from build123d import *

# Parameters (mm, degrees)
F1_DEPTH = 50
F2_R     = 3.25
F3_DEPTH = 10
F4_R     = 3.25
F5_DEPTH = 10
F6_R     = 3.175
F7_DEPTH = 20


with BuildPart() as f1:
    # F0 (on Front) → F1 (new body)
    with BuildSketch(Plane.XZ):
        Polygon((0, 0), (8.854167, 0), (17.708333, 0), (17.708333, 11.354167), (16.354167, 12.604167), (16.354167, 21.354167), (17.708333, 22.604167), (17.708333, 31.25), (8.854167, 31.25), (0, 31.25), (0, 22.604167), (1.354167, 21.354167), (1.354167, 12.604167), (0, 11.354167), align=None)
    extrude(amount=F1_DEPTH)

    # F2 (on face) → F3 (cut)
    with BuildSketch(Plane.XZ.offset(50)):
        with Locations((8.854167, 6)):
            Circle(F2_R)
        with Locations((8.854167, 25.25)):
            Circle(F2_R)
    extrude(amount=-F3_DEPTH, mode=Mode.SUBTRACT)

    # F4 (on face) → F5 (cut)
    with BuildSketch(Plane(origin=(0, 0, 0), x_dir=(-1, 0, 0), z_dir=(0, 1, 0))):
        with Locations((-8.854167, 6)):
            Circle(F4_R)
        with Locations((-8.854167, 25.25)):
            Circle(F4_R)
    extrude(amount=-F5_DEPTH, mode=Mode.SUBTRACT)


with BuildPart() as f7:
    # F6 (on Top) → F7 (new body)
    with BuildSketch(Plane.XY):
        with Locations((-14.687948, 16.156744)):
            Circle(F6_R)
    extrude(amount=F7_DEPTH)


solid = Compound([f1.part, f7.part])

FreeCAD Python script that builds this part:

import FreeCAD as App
import Part
import Sketcher
from FreeCAD import Vector
Q = App.Units.Quantity


def add_polygon(sketch, points):
    """Adds a closed chain of lines whose ends are joined by coincident constraints."""
    first, n = sketch.GeometryCount, len(points)
    for a, b in zip(points, points[1:] + points[:1]):
        sketch.addGeometry(Part.LineSegment(App.Vector(*a, 0), App.Vector(*b, 0)), False)
    for i in range(n):
        sketch.addConstraint(Sketcher.Constraint("Coincident", first + i, 2, first + (i + 1) % n, 1))

doc = App.newDocument("Part")
body = doc.addObject("PartDesign::Body", "Body")

# Sketch on XZ plane
sketch1 = body.newObject("Sketcher::SketchObject", "Sketch")
sketch1.AttachmentSupport = (doc.getObject("XZ_Plane"), [""])
sketch1.MapMode = "FlatFace"
add_polygon(sketch1, [(0, 0), (17.7, 0), (17.7, 11.4), (16.4, 12.6), (16.4, 21.4), (17.7, 22.6), (17.7, 31.2), (0, 31.2), (0, 22.6), (1.4, 21.4), (1.4, 12.6), (0, 11.4)])  # lines 0-11
sketch1.addConstraint(Sketcher.Constraint("Horizontal", 0))
sketch1.addConstraint(Sketcher.Constraint("Vertical", 1))
sketch1.addConstraint(Sketcher.Constraint("Vertical", 3))
sketch1.addConstraint(Sketcher.Constraint("Vertical", 5))
sketch1.addConstraint(Sketcher.Constraint("Horizontal", 6))
sketch1.addConstraint(Sketcher.Constraint("Vertical", 7))
sketch1.addConstraint(Sketcher.Constraint("Vertical", 9))
sketch1.addConstraint(Sketcher.Constraint("Vertical", 11))
sketch1.addConstraint(Sketcher.Constraint("Coincident", 11, 2, -1, 1))
sketch1.addConstraint(Sketcher.Constraint("PointOnObject", 6, 2, -2))
sketch1.addConstraint(Sketcher.Constraint("Parallel", 2, 8))
sketch1.addConstraint(Sketcher.Constraint("Parallel", 4, 10))
sketch1.addConstraint(Sketcher.Constraint("Horizontal", 4, 2, 7, 2))
sketch1.addConstraint(Sketcher.Constraint("Horizontal", 3, 2, 8, 2))
sketch1.addConstraint(Sketcher.Constraint("Horizontal", 2, 2, 9, 2))
sketch1.addConstraint(Sketcher.Constraint("Horizontal", 1, 2, 10, 2))
sketch1.addConstraint(Sketcher.Constraint("Vertical", 1, 2, 4, 2))
sketch1.addConstraint(Sketcher.Constraint("DistanceY", 1, 2, 3, 2, Q("10 mm")))
sketch1.addConstraint(Sketcher.Constraint("DistanceX", 8, 2, 3, 2, Q("15 mm")))
sketch1.addConstraint(Sketcher.Constraint("DistanceY", 3, 1, 3, 2, Q("8.75 mm")))
sketch1.addConstraint(Sketcher.Constraint("DistanceY", -1, 1, 5, 2, Q("31.25 mm")))
sketch1.addConstraint(Sketcher.Constraint("DistanceX", 0, 1, 0, 2, Q("17.708333 mm")))
sketch1.addConstraint(Sketcher.Constraint("DistanceY", 1, 1, 1, 2, Q("11.354167 mm")))
pad1 = body.newObject("PartDesign::Pad", "Pad")
pad1.Profile = sketch1
pad1.Length = 50

# Sketch on XZ plane
sketch2 = body.newObject("Sketcher::SketchObject", "Sketch001")
sketch2.AttachmentSupport = (doc.getObject("XZ_Plane"), [""])
sketch2.MapMode = "FlatFace"
sketch2.AttachmentOffset = App.Placement(Vector(0, 0, 50), App.Rotation())
sketch2.addGeometry(Part.Circle(Vector(8.9, 6, 0), Vector(0, 0, 1), 3.2), False)
sketch2.addGeometry(Part.Circle(Vector(8.9, 25.2, 0), Vector(0, 0, 1), 3.2), False)
sketch2.addConstraint(Sketcher.Constraint("Equal", 0, 1))
sketch2.addConstraint(Sketcher.Constraint("Vertical", 0, 3, 1, 3))
sketch2.addConstraint(Sketcher.Constraint("Diameter", 0, Q("6.5 mm")))
sketch2.addConstraint(Sketcher.Constraint("DistanceY", -1, 1, 0, 3, Q("6 mm")))
sketch2.addConstraint(Sketcher.Constraint("DistanceY", -1, 1, 1, 3, Q("25.25 mm")))
sketch2.addConstraint(Sketcher.Constraint("DistanceX", -1, 1, 0, 3, Q("8.854167 mm")))
pocket1 = body.newObject("PartDesign::Pocket", "Pocket")
pocket1.Profile = sketch2
pocket1.Length = 10

# Sketch on XZ plane
sketch3 = body.newObject("Sketcher::SketchObject", "Sketch002")
sketch3.AttachmentSupport = (doc.getObject("XZ_Plane"), [""])
sketch3.MapMode = "FlatFace"
sketch3.addGeometry(Part.Circle(Vector(8.9, 6, 0), Vector(0, 0, 1), 3.2), False)
sketch3.addGeometry(Part.Circle(Vector(8.9, 25.2, 0), Vector(0, 0, 1), 3.2), False)
sketch3.addConstraint(Sketcher.Constraint("Equal", 0, 1))
sketch3.addConstraint(Sketcher.Constraint("Vertical", 0, 3, 1, 3))
sketch3.addConstraint(Sketcher.Constraint("Diameter", 0, Q("6.5 mm")))
sketch3.addConstraint(Sketcher.Constraint("DistanceY", -1, 1, 0, 3, Q("6 mm")))
sketch3.addConstraint(Sketcher.Constraint("DistanceY", -1, 1, 1, 3, Q("25.25 mm")))
sketch3.addConstraint(Sketcher.Constraint("DistanceX", -1, 1, 0, 3, Q("8.854167 mm")))
pocket2 = body.newObject("PartDesign::Pocket", "Pocket001")
pocket2.Profile = sketch3
pocket2.Length = 10
pocket2.Reversed = True
body2 = doc.addObject("PartDesign::Body", "Body001")

# Sketch on XY plane
sketch4 = body2.newObject("Sketcher::SketchObject", "Sketch003")
sketch4.AttachmentSupport = (doc.getObject("XY_Plane001"), [""])
sketch4.MapMode = "FlatFace"
sketch4.addGeometry(Part.Circle(Vector(-14.7, 16.2, 0), Vector(0, 0, 1), 3.2), False)
sketch4.addConstraint(Sketcher.Constraint("Diameter", 0, Q("6.35 mm")))
sketch4.addConstraint(Sketcher.Constraint("DistanceX", 0, 3, -1, 1, Q("14.687948 mm")))
sketch4.addConstraint(Sketcher.Constraint("DistanceY", -1, 1, 0, 3, Q("16.156744 mm")))
pad2 = body2.newObject("PartDesign::Pad", "Pad001")
pad2.Profile = sketch4
pad2.Length = 20

doc.recompute()
